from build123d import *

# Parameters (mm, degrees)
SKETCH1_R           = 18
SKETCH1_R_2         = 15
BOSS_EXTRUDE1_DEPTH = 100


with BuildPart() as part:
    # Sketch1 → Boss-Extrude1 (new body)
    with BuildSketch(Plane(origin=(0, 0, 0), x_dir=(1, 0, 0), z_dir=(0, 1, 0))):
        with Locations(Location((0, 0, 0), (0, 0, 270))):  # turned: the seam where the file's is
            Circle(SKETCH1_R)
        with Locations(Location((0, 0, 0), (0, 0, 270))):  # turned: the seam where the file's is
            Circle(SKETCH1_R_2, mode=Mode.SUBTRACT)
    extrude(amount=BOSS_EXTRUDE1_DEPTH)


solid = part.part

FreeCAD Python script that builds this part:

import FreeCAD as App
import Part
import Sketcher

V = App.Vector
Q = App.Units.Quantity

doc = App.newDocument("Part")
body = doc.addObject("PartDesign::Body", "Body")

# Sketch on XZ plane
sketch1 = body.newObject("Sketcher::SketchObject", "Sketch")
sketch1.AttachmentSupport = (doc.getObject("XZ_Plane"), [""])
sketch1.MapMode = "FlatFace"
sketch1.addGeometry([
    Part.Circle(V(0, 0, 0), V(0, 0, 1), 18),
    Part.Circle(V(0, 0, 0), V(0, 0, 1), 15),
], False)
sketch1.addConstraint([
    Sketcher.Constraint("Coincident", 0, 3, -1, 1),
    Sketcher.Constraint("Coincident", 1, 3, -1, 1),
    Sketcher.Constraint("Diameter", 0, Q("36 mm")),
    Sketcher.Constraint("Diameter", 1, Q("30 mm")),
])
pad1 = body.newObject("PartDesign::Pad", "Pad")
pad1.Profile = sketch1
pad1.Length = 100
pad1.Reversed = True

doc.recompute()
